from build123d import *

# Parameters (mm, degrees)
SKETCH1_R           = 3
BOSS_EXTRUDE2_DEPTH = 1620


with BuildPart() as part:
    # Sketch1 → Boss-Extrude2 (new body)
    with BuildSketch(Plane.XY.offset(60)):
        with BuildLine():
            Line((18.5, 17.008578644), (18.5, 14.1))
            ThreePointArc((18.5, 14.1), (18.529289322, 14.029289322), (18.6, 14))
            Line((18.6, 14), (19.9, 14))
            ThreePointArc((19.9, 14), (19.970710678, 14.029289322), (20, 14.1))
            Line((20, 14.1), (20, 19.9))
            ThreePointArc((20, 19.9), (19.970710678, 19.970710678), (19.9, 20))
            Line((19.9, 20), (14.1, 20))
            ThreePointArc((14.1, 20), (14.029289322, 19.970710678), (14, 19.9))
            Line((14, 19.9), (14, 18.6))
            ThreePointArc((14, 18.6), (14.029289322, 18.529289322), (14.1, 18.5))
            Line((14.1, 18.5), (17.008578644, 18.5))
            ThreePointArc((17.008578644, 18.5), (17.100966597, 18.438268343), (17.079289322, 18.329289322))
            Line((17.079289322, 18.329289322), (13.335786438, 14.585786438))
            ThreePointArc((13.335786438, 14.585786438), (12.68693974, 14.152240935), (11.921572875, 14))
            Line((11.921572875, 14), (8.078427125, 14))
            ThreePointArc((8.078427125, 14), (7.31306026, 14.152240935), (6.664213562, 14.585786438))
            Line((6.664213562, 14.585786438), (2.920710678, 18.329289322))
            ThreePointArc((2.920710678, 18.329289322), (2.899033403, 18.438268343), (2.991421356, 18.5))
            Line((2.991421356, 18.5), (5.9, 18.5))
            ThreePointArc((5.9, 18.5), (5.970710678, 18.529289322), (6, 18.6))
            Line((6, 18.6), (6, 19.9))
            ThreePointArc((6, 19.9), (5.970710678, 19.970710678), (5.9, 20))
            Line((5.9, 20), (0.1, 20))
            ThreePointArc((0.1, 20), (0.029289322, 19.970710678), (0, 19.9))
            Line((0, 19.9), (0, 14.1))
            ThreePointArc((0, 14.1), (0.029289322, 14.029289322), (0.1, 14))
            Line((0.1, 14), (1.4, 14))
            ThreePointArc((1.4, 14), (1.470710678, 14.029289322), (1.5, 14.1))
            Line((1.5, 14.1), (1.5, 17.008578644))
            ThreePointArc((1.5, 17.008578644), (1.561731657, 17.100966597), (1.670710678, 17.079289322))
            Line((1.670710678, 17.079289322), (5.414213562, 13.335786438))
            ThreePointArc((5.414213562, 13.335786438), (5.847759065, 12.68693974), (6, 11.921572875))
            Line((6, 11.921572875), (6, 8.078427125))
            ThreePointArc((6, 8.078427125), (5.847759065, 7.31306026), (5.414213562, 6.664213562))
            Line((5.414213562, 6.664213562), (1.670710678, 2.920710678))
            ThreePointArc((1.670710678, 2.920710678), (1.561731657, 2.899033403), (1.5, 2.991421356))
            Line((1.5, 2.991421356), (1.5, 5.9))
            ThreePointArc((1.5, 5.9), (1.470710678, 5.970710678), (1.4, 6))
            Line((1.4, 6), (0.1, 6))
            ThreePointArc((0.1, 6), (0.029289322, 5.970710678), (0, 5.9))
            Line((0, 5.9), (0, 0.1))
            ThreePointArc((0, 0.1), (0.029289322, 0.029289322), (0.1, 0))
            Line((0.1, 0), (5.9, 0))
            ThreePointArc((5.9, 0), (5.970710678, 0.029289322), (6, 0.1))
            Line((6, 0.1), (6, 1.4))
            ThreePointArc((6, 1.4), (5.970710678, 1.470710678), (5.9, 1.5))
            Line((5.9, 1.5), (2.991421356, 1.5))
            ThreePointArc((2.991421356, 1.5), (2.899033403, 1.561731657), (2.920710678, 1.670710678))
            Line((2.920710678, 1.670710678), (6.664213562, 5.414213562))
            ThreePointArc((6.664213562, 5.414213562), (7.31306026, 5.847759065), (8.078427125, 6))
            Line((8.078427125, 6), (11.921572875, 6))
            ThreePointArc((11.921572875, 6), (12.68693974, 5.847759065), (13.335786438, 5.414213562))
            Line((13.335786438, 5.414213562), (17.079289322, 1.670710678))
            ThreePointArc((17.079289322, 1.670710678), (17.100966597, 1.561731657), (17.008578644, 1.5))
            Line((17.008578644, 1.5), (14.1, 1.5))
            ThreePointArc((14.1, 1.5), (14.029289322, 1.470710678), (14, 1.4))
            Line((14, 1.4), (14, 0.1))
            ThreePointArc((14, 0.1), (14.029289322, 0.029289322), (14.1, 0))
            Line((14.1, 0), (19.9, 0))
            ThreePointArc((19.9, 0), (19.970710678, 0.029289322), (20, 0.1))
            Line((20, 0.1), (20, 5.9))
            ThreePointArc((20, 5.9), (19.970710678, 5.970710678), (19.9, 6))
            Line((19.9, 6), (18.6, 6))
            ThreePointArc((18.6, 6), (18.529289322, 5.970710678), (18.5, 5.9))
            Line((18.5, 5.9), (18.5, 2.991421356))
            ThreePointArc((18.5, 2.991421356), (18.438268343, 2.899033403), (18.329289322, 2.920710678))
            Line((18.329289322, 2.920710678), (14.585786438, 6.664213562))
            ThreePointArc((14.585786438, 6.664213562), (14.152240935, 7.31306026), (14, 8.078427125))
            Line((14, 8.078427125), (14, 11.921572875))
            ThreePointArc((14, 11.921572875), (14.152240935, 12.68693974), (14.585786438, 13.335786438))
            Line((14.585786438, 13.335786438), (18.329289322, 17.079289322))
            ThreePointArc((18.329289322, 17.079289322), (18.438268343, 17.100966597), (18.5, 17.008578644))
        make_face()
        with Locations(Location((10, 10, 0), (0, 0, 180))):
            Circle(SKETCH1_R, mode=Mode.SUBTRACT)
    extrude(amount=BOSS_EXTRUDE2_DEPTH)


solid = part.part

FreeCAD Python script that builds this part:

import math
import FreeCAD as App
import Part
import Sketcher
from FreeCAD import Vector

doc = App.newDocument("Part")
params = doc.addObject("Spreadsheet::Sheet", "Params")
for row, (alias, value) in enumerate([
    ("sketch1_diameter", "6 mm"),
    ("sketch1_radius", "2 mm"),
    ("sketch1_radius2", "0.1 mm"),
    ("sketch1_width", "1.3 mm"),
    ("sketch1_width2", "5.8 mm"),
    ("pad1_length", "1620 mm"),
], start=1):
    params.set(f"A{row}", alias)
    params.set(f"B{row}", "=" + value)
    params.setAlias(f"B{row}", alias)

body = doc.addObject("PartDesign::Body", "Body")

sketch1 = body.newObject("Sketcher::SketchObject", "Sketch")
sketch1.AttachmentSupport = (doc.getObject("XY_Plane"), [""])
sketch1.MapMode = "FlatFace"
sketch1.AttachmentOffset = App.Placement(Vector(0, 0, 60), App.Rotation())
sketch1.addGeometry([
    Part.LineSegment(Vector(18.5, 17.008579, 0), Vector(18.5, 14.1, 0)),
    Part.ArcOfCircle(Part.Circle(Vector(18.6, 14.1, 0), Vector(0, 0, 1), 0.1), math.radians(180), math.radians(270)),
    Part.LineSegment(Vector(18.6, 14, 0), Vector(19.9, 14, 0)),
    Part.ArcOfCircle(Part.Circle(Vector(19.9, 14.1, 0), Vector(0, 0, 1), 0.1), math.radians(-90), math.radians(0)),
    Part.LineSegment(Vector(20, 14.1, 0), Vector(20, 19.9, 0)),
    Part.ArcOfCircle(Part.Circle(Vector(19.9, 19.9, 0), Vector(0, 0, 1), 0.1), math.radians(0), math.radians(90)),
    Part.LineSegment(Vector(19.9, 20, 0), Vector(14.1, 20, 0)),
    Part.ArcOfCircle(Part.Circle(Vector(14.1, 19.9, 0), Vector(0, 0, 1), 0.1), math.radians(90), math.radians(180)),
    Part.LineSegment(Vector(14, 19.9, 0), Vector(14, 18.6, 0)),
    Part.ArcOfCircle(Part.Circle(Vector(14.1, 18.6, 0), Vector(0, 0, 1), 0.1), math.radians(180), math.radians(270)),
    Part.LineSegment(Vector(14.1, 18.5, 0), Vector(17.008579, 18.5, 0)),
    Part.ArcOfCircle(Part.Circle(Vector(17.008579, 18.4, 0), Vector(0, 0, 1), 0.1), math.radians(-45), math.radians(90)),
    Part.LineSegment(Vector(17.079289, 18.329289, 0), Vector(13.335786, 14.585786, 0)),
    Part.ArcOfCircle(Part.Circle(Vector(11.921573, 16, 0), Vector(0, 0, 1), 2), math.radians(-90), math.radians(-45)),
    Part.LineSegment(Vector(11.921573, 14, 0), Vector(8.078427, 14, 0)),
    Part.ArcOfCircle(Part.Circle(Vector(8.078427, 16, 0), Vector(0, 0, 1), 2), math.radians(-135), math.radians(-90)),
    Part.LineSegment(Vector(6.664214, 14.585786, 0), Vector(2.920711, 18.329289, 0)),
    Part.ArcOfCircle(Part.Circle(Vector(2.991421, 18.4, 0), Vector(0, 0, 1), 0.1), math.radians(90), math.radians(225)),
    Part.LineSegment(Vector(2.991421, 18.5, 0), Vector(5.9, 18.5, 0)),
    Part.ArcOfCircle(Part.Circle(Vector(5.9, 18.6, 0), Vector(0, 0, 1), 0.1), math.radians(-90), math.radians(0)),
    Part.LineSegment(Vector(6, 18.6, 0), Vector(6, 19.9, 0)),
    Part.ArcOfCircle(Part.Circle(Vector(5.9, 19.9, 0), Vector(0, 0, 1), 0.1), math.radians(0), math.radians(90)),
    Part.LineSegment(Vector(5.9, 20, 0), Vector(0.1, 20, 0)),
    Part.ArcOfCircle(Part.Circle(Vector(0.1, 19.9, 0), Vector(0, 0, 1), 0.1), math.radians(90), math.radians(180)),
    Part.LineSegment(Vector(0, 19.9, 0), Vector(0, 14.1, 0)),
    Part.ArcOfCircle(Part.Circle(Vector(0.1, 14.1, 0), Vector(0, 0, 1), 0.1), math.radians(180), math.radians(270)),
    Part.LineSegment(Vector(0.1, 14, 0), Vector(1.4, 14, 0)),
    Part.ArcOfCircle(Part.Circle(Vector(1.4, 14.1, 0), Vector(0, 0, 1), 0.1), math.radians(-90), math.radians(0)),
    Part.LineSegment(Vector(1.5, 14.1, 0), Vector(1.5, 17.008579, 0)),
    Part.ArcOfCircle(Part.Circle(Vector(1.6, 17.008579, 0), Vector(0, 0, 1), 0.1), math.radians(45), math.radians(180)),
    Part.LineSegment(Vector(1.670711, 17.079289, 0), Vector(5.414214, 13.335786, 0)),
    Part.ArcOfCircle(Part.Circle(Vector(4, 11.921573, 0), Vector(0, 0, 1), 2), math.radians(0), math.radians(45)),
    Part.LineSegment(Vector(6, 11.921573, 0), Vector(6, 8.078427, 0)),
    Part.ArcOfCircle(Part.Circle(Vector(4, 8.078427, 0), Vector(0, 0, 1), 2), math.radians(-45), math.radians(0)),
    Part.LineSegment(Vector(5.414214, 6.664214, 0), Vector(1.670711, 2.920711, 0)),
    Part.ArcOfCircle(Part.Circle(Vector(1.6, 2.991421, 0), Vector(0, 0, 1), 0.1), math.radians(180), math.radians(315)),
    Part.LineSegment(Vector(1.5, 2.991421, 0), Vector(1.5, 5.9, 0)),
    Part.ArcOfCircle(Part.Circle(Vector(1.4, 5.9, 0), Vector(0, 0, 1), 0.1), math.radians(0), math.radians(90)),
    Part.LineSegment(Vector(1.4, 6, 0), Vector(0.1, 6, 0)),
    Part.ArcOfCircle(Part.Circle(Vector(0.1, 5.9, 0), Vector(0, 0, 1), 0.1), math.radians(90), math.radians(180)),
    Part.LineSegment(Vector(0, 5.9, 0), Vector(0, 0.1, 0)),
    Part.ArcOfCircle(Part.Circle(Vector(0.1, 0.1, 0), Vector(0, 0, 1), 0.1), math.radians(180), math.radians(270)),
    Part.LineSegment(Vector(0.1, 0, 0), Vector(5.9, 0, 0)),
    Part.ArcOfCircle(Part.Circle(Vector(5.9, 0.1, 0), Vector(0, 0, 1), 0.1), math.radians(-90), math.radians(0)),
    Part.LineSegment(Vector(6, 0.1, 0), Vector(6, 1.4, 0)),
    Part.ArcOfCircle(Part.Circle(Vector(5.9, 1.4, 0), Vector(0, 0, 1), 0.1), math.radians(0), math.radians(90)),
    Part.LineSegment(Vector(5.9, 1.5, 0), Vector(2.991421, 1.5, 0)),
    Part.ArcOfCircle(Part.Circle(Vector(2.991421, 1.6, 0), Vector(0, 0, 1), 0.1), math.radians(135), math.radians(270)),
    Part.LineSegment(Vector(2.920711, 1.670711, 0), Vector(6.664214, 5.414214, 0)),
    Part.ArcOfCircle(Part.Circle(Vector(8.078427, 4, 0), Vector(0, 0, 1), 2), math.radians(90), math.radians(135)),
    Part.LineSegment(Vector(8.078427, 6, 0), Vector(11.921573, 6, 0)),
    Part.ArcOfCircle(Part.Circle(Vector(11.921573, 4, 0), Vector(0, 0, 1), 2), math.radians(45), math.radians(90)),
    Part.LineSegment(Vector(13.335786, 5.414214, 0), Vector(17.079289, 1.670711, 0)),
    Part.ArcOfCircle(Part.Circle(Vector(17.008579, 1.6, 0), Vector(0, 0, 1), 0.1), math.radians(-90), math.radians(45)),
    Part.LineSegment(Vector(17.008579, 1.5, 0), Vector(14.1, 1.5, 0)),
    Part.ArcOfCircle(Part.Circle(Vector(14.1, 1.4, 0), Vector(0, 0, 1), 0.1), math.radians(90), math.radians(180)),
    Part.LineSegment(Vector(14, 1.4, 0), Vector(14, 0.1, 0)),
    Part.ArcOfCircle(Part.Circle(Vector(14.1, 0.1, 0), Vector(0, 0, 1), 0.1), math.radians(180), math.radians(270)),
    Part.LineSegment(Vector(14.1, 0, 0), Vector(19.9, 0, 0)),
    Part.ArcOfCircle(Part.Circle(Vector(19.9, 0.1, 0), Vector(0, 0, 1), 0.1), math.radians(-90), math.radians(0)),
    Part.LineSegment(Vector(20, 0.1, 0), Vector(20, 5.9, 0)),
    Part.ArcOfCircle(Part.Circle(Vector(19.9, 5.9, 0), Vector(0, 0, 1), 0.1), math.radians(0), math.radians(90)),
    Part.LineSegment(Vector(19.9, 6, 0), Vector(18.6, 6, 0)),
    Part.ArcOfCircle(Part.Circle(Vector(18.6, 5.9, 0), Vector(0, 0, 1), 0.1), math.radians(90), math.radians(180)),
    Part.LineSegment(Vector(18.5, 5.9, 0), Vector(18.5, 2.991421, 0)),
    Part.ArcOfCircle(Part.Circle(Vector(18.4, 2.991421, 0), Vector(0, 0, 1), 0.1), math.radians(-135), math.radians(0)),
    Part.LineSegment(Vector(18.329289, 2.920711, 0), Vector(14.585786, 6.664214, 0)),
    Part.ArcOfCircle(Part.Circle(Vector(16, 8.078427, 0), Vector(0, 0, 1), 2), math.radians(180), math.radians(225)),
    Part.LineSegment(Vector(14, 8.078427, 0), Vector(14, 11.921573, 0)),
    Part.ArcOfCircle(Part.Circle(Vector(16, 11.921573, 0), Vector(0, 0, 1), 2), math.radians(135), math.radians(180)),
    Part.LineSegment(Vector(14.585786, 13.335786, 0), Vector(18.329289, 17.079289, 0)),
    Part.ArcOfCircle(Part.Circle(Vector(18.4, 17.008579, 0), Vector(0, 0, 1), 0.1), math.radians(0), math.radians(135)),
    Part.Circle(Vector(10, 10, 0), Vector(0, 0, 1), 3),
], False)
sketch1.addConstraint([
    Sketcher.Constraint("Tangent", 0, 2, 1, 1),
    Sketcher.Constraint("Tangent", 1, 2, 2, 1),
    Sketcher.Constraint("Tangent", 2, 2, 3, 1),
    Sketcher.Constraint("Tangent", 3, 2, 4, 1),
    Sketcher.Constraint("Tangent", 4, 2, 5, 1),
    Sketcher.Constraint("Tangent", 5, 2, 6, 1),
    Sketcher.Constraint("Tangent", 6, 2, 7, 1),
    Sketcher.Constraint("Tangent", 7, 2, 8, 1),
    Sketcher.Constraint("Tangent", 8, 2, 9, 1),
    Sketcher.Constraint("Tangent", 9, 2, 10, 1),
    Sketcher.Constraint("Tangent", 10, 2, 11, 2),
    Sketcher.Constraint("Tangent", 11, 1, 12, 1),
    Sketcher.Constraint("Tangent", 12, 2, 13, 2),
    Sketcher.Constraint("Tangent", 13, 1, 14, 1),
    Sketcher.Constraint("Tangent", 14, 2, 15, 2),
    Sketcher.Constraint("Tangent", 15, 1, 16, 1),
    Sketcher.Constraint("Tangent", 16, 2, 17, 2),
    Sketcher.Constraint("Tangent", 17, 1, 18, 1),
    Sketcher.Constraint("Tangent", 18, 2, 19, 1),
    Sketcher.Constraint("Tangent", 19, 2, 20, 1),
    Sketcher.Constraint("Tangent", 20, 2, 21, 1),
    Sketcher.Constraint("Tangent", 21, 2, 22, 1),
    Sketcher.Constraint("Tangent", 22, 2, 23, 1),
    Sketcher.Constraint("Tangent", 23, 2, 24, 1),
    Sketcher.Constraint("Tangent", 24, 2, 25, 1),
    Sketcher.Constraint("Tangent", 25, 2, 26, 1),
    Sketcher.Constraint("Tangent", 26, 2, 27, 1),
    Sketcher.Constraint("Tangent", 27, 2, 28, 1),
    Sketcher.Constraint("Tangent", 28, 2, 29, 2),
    Sketcher.Constraint("Tangent", 29, 1, 30, 1),
    Sketcher.Constraint("Tangent", 30, 2, 31, 2),
    Sketcher.Constraint("Tangent", 31, 1, 32, 1),
    Sketcher.Constraint("Tangent", 32, 2, 33, 2),
    Sketcher.Constraint("Tangent", 33, 1, 34, 1),
    Sketcher.Constraint("Tangent", 34, 2, 35, 2),
    Sketcher.Constraint("Tangent", 35, 1, 36, 1),
    Sketcher.Constraint("Tangent", 36, 2, 37, 1),
    Sketcher.Constraint("Tangent", 37, 2, 38, 1),
    Sketcher.Constraint("Tangent", 38, 2, 39, 1),
    Sketcher.Constraint("Tangent", 39, 2, 40, 1),
    Sketcher.Constraint("Tangent", 40, 2, 41, 1),
    Sketcher.Constraint("Tangent", 41, 2, 42, 1),
    Sketcher.Constraint("Tangent", 42, 2, 43, 1),
    Sketcher.Constraint("Tangent", 43, 2, 44, 1),
    Sketcher.Constraint("Tangent", 44, 2, 45, 1),
    Sketcher.Constraint("Tangent", 45, 2, 46, 1),
    Sketcher.Constraint("Tangent", 46, 2, 47, 2),
    Sketcher.Constraint("Tangent", 47, 1, 48, 1),
    Sketcher.Constraint("Tangent", 48, 2, 49, 2),
    Sketcher.Constraint("Tangent", 49, 1, 50, 1),
    Sketcher.Constraint("Tangent", 50, 2, 51, 2),
    Sketcher.Constraint("Tangent", 51, 1, 52, 1),
    Sketcher.Constraint("Tangent", 52, 2, 53, 2),
    Sketcher.Constraint("Tangent", 53, 1, 54, 1),
    Sketcher.Constraint("Tangent", 54, 2, 55, 1),
    Sketcher.Constraint("Tangent", 55, 2, 56, 1),
    Sketcher.Constraint("Tangent", 56, 2, 57, 1),
    Sketcher.Constraint("Tangent", 57, 2, 58, 1),
    Sketcher.Constraint("Tangent", 58, 2, 59, 1),
    Sketcher.Constraint("Tangent", 59, 2, 60, 1),
    Sketcher.Constraint("Tangent", 60, 2, 61, 1),
    Sketcher.Constraint("Tangent", 61, 2, 62, 1),
    Sketcher.Constraint("Tangent", 62, 2, 63, 1),
    Sketcher.Constraint("Tangent", 63, 2, 64, 1),
    Sketcher.Constraint("Tangent", 64, 2, 65, 2),
    Sketcher.Constraint("Tangent", 65, 1, 66, 1),
    Sketcher.Constraint("Tangent", 66, 2, 67, 2),
    Sketcher.Constraint("Tangent", 67, 1, 68, 1),
    Sketcher.Constraint("Tangent", 68, 2, 69, 2),
    Sketcher.Constraint("Tangent", 69, 1, 70, 1),
    Sketcher.Constraint("Tangent", 70, 2, 71, 2),
    Sketcher.Constraint("Tangent", 71, 1, 0, 1),
    Sketcher.Constraint("Vertical", 0),
    Sketcher.Constraint("Horizontal", 2),
    Sketcher.Constraint("Vertical", 4),
    Sketcher.Constraint("Horizontal", 6),
    Sketcher.Constraint("Vertical", 8),
    Sketcher.Constraint("Horizontal", 10),
    Sketcher.Constraint("Horizontal", 14),
    Sketcher.Constraint("Horizontal", 18),
    Sketcher.Constraint("Vertical", 20),
    Sketcher.Constraint("Horizontal", 22),
    Sketcher.Constraint("Vertical", 24),
    Sketcher.Constraint("Horizontal", 26),
    Sketcher.Constraint("Vertical", 28),
    Sketcher.Constraint("Vertical", 32),
    Sketcher.Constraint("Vertical", 36),
    Sketcher.Constraint("Horizontal", 38),
    Sketcher.Constraint("Vertical", 40),
    Sketcher.Constraint("Horizontal", 42),
    Sketcher.Constraint("Vertical", 44),
    Sketcher.Constraint("Horizontal", 46),
    Sketcher.Constraint("Horizontal", 50),
    Sketcher.Constraint("Horizontal", 54),
    Sketcher.Constraint("Vertical", 56),
    Sketcher.Constraint("Horizontal", 58),
    Sketcher.Constraint("Vertical", 60),
    Sketcher.Constraint("Horizontal", 62),
    Sketcher.Constraint("Vertical", 64),
    Sketcher.Constraint("Vertical", 68),
    Sketcher.Constraint("Equal", 1, 3),
    Sketcher.Constraint("Equal", 3, 5),
    Sketcher.Constraint("Equal", 5, 7),
    Sketcher.Constraint("Equal", 7, 9),
    Sketcher.Constraint("Equal", 9, 11),
    Sketcher.Constraint("Equal", 13, 15),
    Sketcher.Constraint("Equal", 11, 17),
    Sketcher.Constraint("Equal", 17, 19),
    Sketcher.Constraint("Equal", 19, 21),
    Sketcher.Constraint("Equal", 21, 23),
    Sketcher.Constraint("Equal", 23, 25),
    Sketcher.Constraint("Equal", 25, 27),
    Sketcher.Constraint("Equal", 27, 29),
    Sketcher.Constraint("Equal", 15, 31),
    Sketcher.Constraint("Equal", 31, 33),
    Sketcher.Constraint("Equal", 29, 35),
    Sketcher.Constraint("Equal", 35, 37),
    Sketcher.Constraint("Equal", 37, 39),
    Sketcher.Constraint("Equal", 39, 41),
    Sketcher.Constraint("Equal", 41, 43),
    Sketcher.Constraint("Equal", 43, 45),
    Sketcher.Constraint("Equal", 45, 47),
    Sketcher.Constraint("Equal", 33, 49),
    Sketcher.Constraint("Equal", 49, 51),
    Sketcher.Constraint("Equal", 47, 53),
    Sketcher.Constraint("Equal", 53, 55),
    Sketcher.Constraint("Equal", 55, 57),
    Sketcher.Constraint("Equal", 57, 59),
    Sketcher.Constraint("Equal", 59, 61),
    Sketcher.Constraint("Equal", 61, 63),
    Sketcher.Constraint("Equal", 63, 65),
    Sketcher.Constraint("Equal", 51, 67),
    Sketcher.Constraint("Equal", 67, 69),
    Sketcher.Constraint("Equal", 65, 71),
    Sketcher.Constraint("PointOnObject", 23, 2, -2),
    Sketcher.Constraint("PointOnObject", 39, 2, -2),
    Sketcher.Constraint("PointOnObject", 41, 2, -1),
    Sketcher.Constraint("PointOnObject", 57, 2, -1),
    Sketcher.Constraint("Perpendicular", 12, 16),
    Sketcher.Constraint("Parallel", 16, 30),
    Sketcher.Constraint("Perpendicular", 30, 34),
    Sketcher.Constraint("Parallel", 34, 48),
    Sketcher.Constraint("Perpendicular", 48, 52),
    Sketcher.Constraint("Parallel", 52, 66),
    Sketcher.Constraint("Perpendicular", 66, 70),
    Sketcher.Constraint("Horizontal", 11, 3, 17, 3),
    Sketcher.Constraint("Horizontal", 7, 3, 21, 3),
    Sketcher.Constraint("Horizontal", 3, 3, 25, 3),
    Sketcher.Constraint("Horizontal", 47, 3, 53, 3),
    Sketcher.Constraint("Horizontal", 39, 3, 61, 3),
    Sketcher.Constraint("Horizontal", 35, 3, 65, 3),
    Sketcher.Constraint("Horizontal", 33, 3, 67, 3),
    Sketcher.Constraint("Horizontal", 31, 3, 69, 3),
    Sketcher.Constraint("Horizontal", 29, 3, 71, 3),
    Sketcher.Constraint("Horizontal", 2, 2, 13, 1),
    Sketcher.Constraint("Horizontal", 12, 2, 15, 1),
    Sketcher.Constraint("Horizontal", 38, 2, 49, 1),
    Sketcher.Constraint("Vertical", 29, 3, 35, 3),
    Sketcher.Constraint("Vertical", 21, 3, 43, 3),
    Sketcher.Constraint("Vertical", 17, 3, 47, 3),
    Sketcher.Constraint("Vertical", 15, 3, 49, 3),
    Sketcher.Constraint("Vertical", 13, 3, 51, 3),
    Sketcher.Constraint("Vertical", 9, 3, 55, 3),
    Sketcher.Constraint("Vertical", 5, 3, 59, 3),
    Sketcher.Constraint("Vertical", 20, 2, 31, 1),
    Sketcher.Constraint("Vertical", 56, 2, 67, 1),
    Sketcher.Constraint("Equal", 10, 18),
    Sketcher.Constraint("Equal", 6, 22),
    Sketcher.Constraint("Equal", 54, 0),
    Sketcher.Constraint("Equal", 58, 4),
    Sketcher.Constraint("Equal", 62, 8),
    Sketcher.Constraint("Equal", 50, 32),
    Sketcher.Constraint("Equal", 28, 36),
    Sketcher.Constraint("Equal", 24, 40),
    Sketcher.Constraint("Diameter", 72, 6.0),
    Sketcher.Constraint("Radius", 13, 2.0),
    Sketcher.Constraint("Radius", 1, 0.1),
    Sketcher.Constraint("DistanceX", 2, 1, 2, 2, 1.3),
    Sketcher.Constraint("DistanceX", 6, 2, 6, 1, 5.8),
    Sketcher.Constraint("DistanceY", -1, 1, 13, 3, 16.0),
    Sketcher.Constraint("DistanceX", -1, 1, 72, 3, 10.0),
    Sketcher.Constraint("DistanceY", -1, 1, 72, 3, 10.0),
    Sketcher.Constraint("DistanceX", 10, 1, 10, 2, 2.908579),
])
sketch1.setExpression("Constraints[174]", "Params.sketch1_diameter")
sketch1.setExpression("Constraints[175]", "Params.sketch1_radius")
sketch1.setExpression("Constraints[176]", "Params.sketch1_radius2")
sketch1.setExpression("Constraints[177]", "Params.sketch1_width")
sketch1.setExpression("Constraints[178]", "Params.sketch1_width2")
pad1 = body.newObject("PartDesign::Pad", "Pad")
pad1.Profile = sketch1
pad1.setExpression("Length", "Params.pad1_length")

doc.recompute()
